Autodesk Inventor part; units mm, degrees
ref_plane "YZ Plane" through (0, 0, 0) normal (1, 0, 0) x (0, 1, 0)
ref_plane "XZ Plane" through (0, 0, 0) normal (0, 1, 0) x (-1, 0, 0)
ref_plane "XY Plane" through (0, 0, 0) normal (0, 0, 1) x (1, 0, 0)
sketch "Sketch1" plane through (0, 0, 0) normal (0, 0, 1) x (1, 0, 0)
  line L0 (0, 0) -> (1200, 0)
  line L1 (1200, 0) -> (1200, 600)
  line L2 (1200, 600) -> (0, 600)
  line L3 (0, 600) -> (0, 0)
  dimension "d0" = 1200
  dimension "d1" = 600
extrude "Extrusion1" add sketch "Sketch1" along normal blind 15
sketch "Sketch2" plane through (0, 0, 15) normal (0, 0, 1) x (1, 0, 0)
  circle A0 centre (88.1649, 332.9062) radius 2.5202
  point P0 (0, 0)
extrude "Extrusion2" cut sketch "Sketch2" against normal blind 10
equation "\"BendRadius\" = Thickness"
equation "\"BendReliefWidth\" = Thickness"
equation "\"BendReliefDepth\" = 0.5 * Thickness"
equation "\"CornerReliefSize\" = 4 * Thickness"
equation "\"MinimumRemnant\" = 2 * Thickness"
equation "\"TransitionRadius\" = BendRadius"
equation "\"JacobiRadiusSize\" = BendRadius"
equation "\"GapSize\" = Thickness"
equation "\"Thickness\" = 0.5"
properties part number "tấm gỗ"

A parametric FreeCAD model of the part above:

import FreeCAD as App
import Part
import Sketcher


def add_polygon(sketch, points):
    """Adds a closed chain of lines whose ends are joined by coincident constraints."""
    first, n = sketch.GeometryCount, len(points)
    for a, b in zip(points, points[1:] + points[:1]):
        sketch.addGeometry(Part.LineSegment(App.Vector(*a, 0), App.Vector(*b, 0)), False)
    for i in range(n):
        sketch.addConstraint(Sketcher.Constraint("Coincident", first + i, 2, first + (i + 1) % n, 1))

doc = App.newDocument("Part")
params = doc.addObject("Spreadsheet::Sheet", "Params")
for row, (alias, value) in enumerate([
    ("sketch1_width", "1200 mm"),
    ("sketch1_height", "600 mm"),
    ("pad1_length", "15 mm"),
    ("pocket1_length", "10 mm"),
], start=1):
    params.set(f"A{row}", alias)
    params.set(f"B{row}", "=" + value)
    params.setAlias(f"B{row}", alias)

body = doc.addObject("PartDesign::Body", "Body")

sketch1 = body.newObject("Sketcher::SketchObject", "Sketch")
sketch1.AttachmentSupport = (doc.getObject("XY_Plane"), [""])
sketch1.MapMode = "FlatFace"
add_polygon(sketch1, [(0, 600), (0, 0), (1200, 0), (1200, 600)])
sketch1.addConstraint(Sketcher.Constraint("Vertical", 0))
sketch1.addConstraint(Sketcher.Constraint("Horizontal", 1))
sketch1.addConstraint(Sketcher.Constraint("Vertical", 2))
sketch1.addConstraint(Sketcher.Constraint("Horizontal", 3))
sketch1.addConstraint(Sketcher.Constraint("Coincident", 0, 2, -1, 1))
sketch1.addConstraint(Sketcher.Constraint("DistanceX", 1, 1, 1, 2, 1200.0))
sketch1.addConstraint(Sketcher.Constraint("DistanceY", 0, 2, 0, 1, 600.0))
sketch1.setExpression("Constraints[9]", "Params.sketch1_width")
sketch1.setExpression("Constraints[10]", "Params.sketch1_height")
pad1 = body.newObject("PartDesign::Pad", "Pad")
pad1.Profile = sketch1
pad1.setExpression("Length", "Params.pad1_length")

sketch2 = body.newObject("Sketcher::SketchObject", "Sketch001")
sketch2.AttachmentSupport = (doc.getObject("XY_Plane"), [""])
sketch2.MapMode = "FlatFace"
sketch2.AttachmentOffset = App.Placement(App.Vector(0, 0, 15), App.Rotation())
sketch2.addGeometry(Part.Circle(App.Vector(88.2, 332.9, 0), App.Vector(0, 0, 1), 2.5), False)
sketch2.addConstraint(Sketcher.Constraint("Diameter", 0, 5.0404))
sketch2.addConstraint(Sketcher.Constraint("DistanceX", -1, 1, 0, 3, 88.165))
sketch2.addConstraint(Sketcher.Constraint("DistanceY", -1, 1, 0, 3, 332.9062))
pocket1 = body.newObject("PartDesign::Pocket", "Pocket")
pocket1.Profile = sketch2
pocket1.setExpression("Length", "Params.pocket1_length")

doc.recompute()
